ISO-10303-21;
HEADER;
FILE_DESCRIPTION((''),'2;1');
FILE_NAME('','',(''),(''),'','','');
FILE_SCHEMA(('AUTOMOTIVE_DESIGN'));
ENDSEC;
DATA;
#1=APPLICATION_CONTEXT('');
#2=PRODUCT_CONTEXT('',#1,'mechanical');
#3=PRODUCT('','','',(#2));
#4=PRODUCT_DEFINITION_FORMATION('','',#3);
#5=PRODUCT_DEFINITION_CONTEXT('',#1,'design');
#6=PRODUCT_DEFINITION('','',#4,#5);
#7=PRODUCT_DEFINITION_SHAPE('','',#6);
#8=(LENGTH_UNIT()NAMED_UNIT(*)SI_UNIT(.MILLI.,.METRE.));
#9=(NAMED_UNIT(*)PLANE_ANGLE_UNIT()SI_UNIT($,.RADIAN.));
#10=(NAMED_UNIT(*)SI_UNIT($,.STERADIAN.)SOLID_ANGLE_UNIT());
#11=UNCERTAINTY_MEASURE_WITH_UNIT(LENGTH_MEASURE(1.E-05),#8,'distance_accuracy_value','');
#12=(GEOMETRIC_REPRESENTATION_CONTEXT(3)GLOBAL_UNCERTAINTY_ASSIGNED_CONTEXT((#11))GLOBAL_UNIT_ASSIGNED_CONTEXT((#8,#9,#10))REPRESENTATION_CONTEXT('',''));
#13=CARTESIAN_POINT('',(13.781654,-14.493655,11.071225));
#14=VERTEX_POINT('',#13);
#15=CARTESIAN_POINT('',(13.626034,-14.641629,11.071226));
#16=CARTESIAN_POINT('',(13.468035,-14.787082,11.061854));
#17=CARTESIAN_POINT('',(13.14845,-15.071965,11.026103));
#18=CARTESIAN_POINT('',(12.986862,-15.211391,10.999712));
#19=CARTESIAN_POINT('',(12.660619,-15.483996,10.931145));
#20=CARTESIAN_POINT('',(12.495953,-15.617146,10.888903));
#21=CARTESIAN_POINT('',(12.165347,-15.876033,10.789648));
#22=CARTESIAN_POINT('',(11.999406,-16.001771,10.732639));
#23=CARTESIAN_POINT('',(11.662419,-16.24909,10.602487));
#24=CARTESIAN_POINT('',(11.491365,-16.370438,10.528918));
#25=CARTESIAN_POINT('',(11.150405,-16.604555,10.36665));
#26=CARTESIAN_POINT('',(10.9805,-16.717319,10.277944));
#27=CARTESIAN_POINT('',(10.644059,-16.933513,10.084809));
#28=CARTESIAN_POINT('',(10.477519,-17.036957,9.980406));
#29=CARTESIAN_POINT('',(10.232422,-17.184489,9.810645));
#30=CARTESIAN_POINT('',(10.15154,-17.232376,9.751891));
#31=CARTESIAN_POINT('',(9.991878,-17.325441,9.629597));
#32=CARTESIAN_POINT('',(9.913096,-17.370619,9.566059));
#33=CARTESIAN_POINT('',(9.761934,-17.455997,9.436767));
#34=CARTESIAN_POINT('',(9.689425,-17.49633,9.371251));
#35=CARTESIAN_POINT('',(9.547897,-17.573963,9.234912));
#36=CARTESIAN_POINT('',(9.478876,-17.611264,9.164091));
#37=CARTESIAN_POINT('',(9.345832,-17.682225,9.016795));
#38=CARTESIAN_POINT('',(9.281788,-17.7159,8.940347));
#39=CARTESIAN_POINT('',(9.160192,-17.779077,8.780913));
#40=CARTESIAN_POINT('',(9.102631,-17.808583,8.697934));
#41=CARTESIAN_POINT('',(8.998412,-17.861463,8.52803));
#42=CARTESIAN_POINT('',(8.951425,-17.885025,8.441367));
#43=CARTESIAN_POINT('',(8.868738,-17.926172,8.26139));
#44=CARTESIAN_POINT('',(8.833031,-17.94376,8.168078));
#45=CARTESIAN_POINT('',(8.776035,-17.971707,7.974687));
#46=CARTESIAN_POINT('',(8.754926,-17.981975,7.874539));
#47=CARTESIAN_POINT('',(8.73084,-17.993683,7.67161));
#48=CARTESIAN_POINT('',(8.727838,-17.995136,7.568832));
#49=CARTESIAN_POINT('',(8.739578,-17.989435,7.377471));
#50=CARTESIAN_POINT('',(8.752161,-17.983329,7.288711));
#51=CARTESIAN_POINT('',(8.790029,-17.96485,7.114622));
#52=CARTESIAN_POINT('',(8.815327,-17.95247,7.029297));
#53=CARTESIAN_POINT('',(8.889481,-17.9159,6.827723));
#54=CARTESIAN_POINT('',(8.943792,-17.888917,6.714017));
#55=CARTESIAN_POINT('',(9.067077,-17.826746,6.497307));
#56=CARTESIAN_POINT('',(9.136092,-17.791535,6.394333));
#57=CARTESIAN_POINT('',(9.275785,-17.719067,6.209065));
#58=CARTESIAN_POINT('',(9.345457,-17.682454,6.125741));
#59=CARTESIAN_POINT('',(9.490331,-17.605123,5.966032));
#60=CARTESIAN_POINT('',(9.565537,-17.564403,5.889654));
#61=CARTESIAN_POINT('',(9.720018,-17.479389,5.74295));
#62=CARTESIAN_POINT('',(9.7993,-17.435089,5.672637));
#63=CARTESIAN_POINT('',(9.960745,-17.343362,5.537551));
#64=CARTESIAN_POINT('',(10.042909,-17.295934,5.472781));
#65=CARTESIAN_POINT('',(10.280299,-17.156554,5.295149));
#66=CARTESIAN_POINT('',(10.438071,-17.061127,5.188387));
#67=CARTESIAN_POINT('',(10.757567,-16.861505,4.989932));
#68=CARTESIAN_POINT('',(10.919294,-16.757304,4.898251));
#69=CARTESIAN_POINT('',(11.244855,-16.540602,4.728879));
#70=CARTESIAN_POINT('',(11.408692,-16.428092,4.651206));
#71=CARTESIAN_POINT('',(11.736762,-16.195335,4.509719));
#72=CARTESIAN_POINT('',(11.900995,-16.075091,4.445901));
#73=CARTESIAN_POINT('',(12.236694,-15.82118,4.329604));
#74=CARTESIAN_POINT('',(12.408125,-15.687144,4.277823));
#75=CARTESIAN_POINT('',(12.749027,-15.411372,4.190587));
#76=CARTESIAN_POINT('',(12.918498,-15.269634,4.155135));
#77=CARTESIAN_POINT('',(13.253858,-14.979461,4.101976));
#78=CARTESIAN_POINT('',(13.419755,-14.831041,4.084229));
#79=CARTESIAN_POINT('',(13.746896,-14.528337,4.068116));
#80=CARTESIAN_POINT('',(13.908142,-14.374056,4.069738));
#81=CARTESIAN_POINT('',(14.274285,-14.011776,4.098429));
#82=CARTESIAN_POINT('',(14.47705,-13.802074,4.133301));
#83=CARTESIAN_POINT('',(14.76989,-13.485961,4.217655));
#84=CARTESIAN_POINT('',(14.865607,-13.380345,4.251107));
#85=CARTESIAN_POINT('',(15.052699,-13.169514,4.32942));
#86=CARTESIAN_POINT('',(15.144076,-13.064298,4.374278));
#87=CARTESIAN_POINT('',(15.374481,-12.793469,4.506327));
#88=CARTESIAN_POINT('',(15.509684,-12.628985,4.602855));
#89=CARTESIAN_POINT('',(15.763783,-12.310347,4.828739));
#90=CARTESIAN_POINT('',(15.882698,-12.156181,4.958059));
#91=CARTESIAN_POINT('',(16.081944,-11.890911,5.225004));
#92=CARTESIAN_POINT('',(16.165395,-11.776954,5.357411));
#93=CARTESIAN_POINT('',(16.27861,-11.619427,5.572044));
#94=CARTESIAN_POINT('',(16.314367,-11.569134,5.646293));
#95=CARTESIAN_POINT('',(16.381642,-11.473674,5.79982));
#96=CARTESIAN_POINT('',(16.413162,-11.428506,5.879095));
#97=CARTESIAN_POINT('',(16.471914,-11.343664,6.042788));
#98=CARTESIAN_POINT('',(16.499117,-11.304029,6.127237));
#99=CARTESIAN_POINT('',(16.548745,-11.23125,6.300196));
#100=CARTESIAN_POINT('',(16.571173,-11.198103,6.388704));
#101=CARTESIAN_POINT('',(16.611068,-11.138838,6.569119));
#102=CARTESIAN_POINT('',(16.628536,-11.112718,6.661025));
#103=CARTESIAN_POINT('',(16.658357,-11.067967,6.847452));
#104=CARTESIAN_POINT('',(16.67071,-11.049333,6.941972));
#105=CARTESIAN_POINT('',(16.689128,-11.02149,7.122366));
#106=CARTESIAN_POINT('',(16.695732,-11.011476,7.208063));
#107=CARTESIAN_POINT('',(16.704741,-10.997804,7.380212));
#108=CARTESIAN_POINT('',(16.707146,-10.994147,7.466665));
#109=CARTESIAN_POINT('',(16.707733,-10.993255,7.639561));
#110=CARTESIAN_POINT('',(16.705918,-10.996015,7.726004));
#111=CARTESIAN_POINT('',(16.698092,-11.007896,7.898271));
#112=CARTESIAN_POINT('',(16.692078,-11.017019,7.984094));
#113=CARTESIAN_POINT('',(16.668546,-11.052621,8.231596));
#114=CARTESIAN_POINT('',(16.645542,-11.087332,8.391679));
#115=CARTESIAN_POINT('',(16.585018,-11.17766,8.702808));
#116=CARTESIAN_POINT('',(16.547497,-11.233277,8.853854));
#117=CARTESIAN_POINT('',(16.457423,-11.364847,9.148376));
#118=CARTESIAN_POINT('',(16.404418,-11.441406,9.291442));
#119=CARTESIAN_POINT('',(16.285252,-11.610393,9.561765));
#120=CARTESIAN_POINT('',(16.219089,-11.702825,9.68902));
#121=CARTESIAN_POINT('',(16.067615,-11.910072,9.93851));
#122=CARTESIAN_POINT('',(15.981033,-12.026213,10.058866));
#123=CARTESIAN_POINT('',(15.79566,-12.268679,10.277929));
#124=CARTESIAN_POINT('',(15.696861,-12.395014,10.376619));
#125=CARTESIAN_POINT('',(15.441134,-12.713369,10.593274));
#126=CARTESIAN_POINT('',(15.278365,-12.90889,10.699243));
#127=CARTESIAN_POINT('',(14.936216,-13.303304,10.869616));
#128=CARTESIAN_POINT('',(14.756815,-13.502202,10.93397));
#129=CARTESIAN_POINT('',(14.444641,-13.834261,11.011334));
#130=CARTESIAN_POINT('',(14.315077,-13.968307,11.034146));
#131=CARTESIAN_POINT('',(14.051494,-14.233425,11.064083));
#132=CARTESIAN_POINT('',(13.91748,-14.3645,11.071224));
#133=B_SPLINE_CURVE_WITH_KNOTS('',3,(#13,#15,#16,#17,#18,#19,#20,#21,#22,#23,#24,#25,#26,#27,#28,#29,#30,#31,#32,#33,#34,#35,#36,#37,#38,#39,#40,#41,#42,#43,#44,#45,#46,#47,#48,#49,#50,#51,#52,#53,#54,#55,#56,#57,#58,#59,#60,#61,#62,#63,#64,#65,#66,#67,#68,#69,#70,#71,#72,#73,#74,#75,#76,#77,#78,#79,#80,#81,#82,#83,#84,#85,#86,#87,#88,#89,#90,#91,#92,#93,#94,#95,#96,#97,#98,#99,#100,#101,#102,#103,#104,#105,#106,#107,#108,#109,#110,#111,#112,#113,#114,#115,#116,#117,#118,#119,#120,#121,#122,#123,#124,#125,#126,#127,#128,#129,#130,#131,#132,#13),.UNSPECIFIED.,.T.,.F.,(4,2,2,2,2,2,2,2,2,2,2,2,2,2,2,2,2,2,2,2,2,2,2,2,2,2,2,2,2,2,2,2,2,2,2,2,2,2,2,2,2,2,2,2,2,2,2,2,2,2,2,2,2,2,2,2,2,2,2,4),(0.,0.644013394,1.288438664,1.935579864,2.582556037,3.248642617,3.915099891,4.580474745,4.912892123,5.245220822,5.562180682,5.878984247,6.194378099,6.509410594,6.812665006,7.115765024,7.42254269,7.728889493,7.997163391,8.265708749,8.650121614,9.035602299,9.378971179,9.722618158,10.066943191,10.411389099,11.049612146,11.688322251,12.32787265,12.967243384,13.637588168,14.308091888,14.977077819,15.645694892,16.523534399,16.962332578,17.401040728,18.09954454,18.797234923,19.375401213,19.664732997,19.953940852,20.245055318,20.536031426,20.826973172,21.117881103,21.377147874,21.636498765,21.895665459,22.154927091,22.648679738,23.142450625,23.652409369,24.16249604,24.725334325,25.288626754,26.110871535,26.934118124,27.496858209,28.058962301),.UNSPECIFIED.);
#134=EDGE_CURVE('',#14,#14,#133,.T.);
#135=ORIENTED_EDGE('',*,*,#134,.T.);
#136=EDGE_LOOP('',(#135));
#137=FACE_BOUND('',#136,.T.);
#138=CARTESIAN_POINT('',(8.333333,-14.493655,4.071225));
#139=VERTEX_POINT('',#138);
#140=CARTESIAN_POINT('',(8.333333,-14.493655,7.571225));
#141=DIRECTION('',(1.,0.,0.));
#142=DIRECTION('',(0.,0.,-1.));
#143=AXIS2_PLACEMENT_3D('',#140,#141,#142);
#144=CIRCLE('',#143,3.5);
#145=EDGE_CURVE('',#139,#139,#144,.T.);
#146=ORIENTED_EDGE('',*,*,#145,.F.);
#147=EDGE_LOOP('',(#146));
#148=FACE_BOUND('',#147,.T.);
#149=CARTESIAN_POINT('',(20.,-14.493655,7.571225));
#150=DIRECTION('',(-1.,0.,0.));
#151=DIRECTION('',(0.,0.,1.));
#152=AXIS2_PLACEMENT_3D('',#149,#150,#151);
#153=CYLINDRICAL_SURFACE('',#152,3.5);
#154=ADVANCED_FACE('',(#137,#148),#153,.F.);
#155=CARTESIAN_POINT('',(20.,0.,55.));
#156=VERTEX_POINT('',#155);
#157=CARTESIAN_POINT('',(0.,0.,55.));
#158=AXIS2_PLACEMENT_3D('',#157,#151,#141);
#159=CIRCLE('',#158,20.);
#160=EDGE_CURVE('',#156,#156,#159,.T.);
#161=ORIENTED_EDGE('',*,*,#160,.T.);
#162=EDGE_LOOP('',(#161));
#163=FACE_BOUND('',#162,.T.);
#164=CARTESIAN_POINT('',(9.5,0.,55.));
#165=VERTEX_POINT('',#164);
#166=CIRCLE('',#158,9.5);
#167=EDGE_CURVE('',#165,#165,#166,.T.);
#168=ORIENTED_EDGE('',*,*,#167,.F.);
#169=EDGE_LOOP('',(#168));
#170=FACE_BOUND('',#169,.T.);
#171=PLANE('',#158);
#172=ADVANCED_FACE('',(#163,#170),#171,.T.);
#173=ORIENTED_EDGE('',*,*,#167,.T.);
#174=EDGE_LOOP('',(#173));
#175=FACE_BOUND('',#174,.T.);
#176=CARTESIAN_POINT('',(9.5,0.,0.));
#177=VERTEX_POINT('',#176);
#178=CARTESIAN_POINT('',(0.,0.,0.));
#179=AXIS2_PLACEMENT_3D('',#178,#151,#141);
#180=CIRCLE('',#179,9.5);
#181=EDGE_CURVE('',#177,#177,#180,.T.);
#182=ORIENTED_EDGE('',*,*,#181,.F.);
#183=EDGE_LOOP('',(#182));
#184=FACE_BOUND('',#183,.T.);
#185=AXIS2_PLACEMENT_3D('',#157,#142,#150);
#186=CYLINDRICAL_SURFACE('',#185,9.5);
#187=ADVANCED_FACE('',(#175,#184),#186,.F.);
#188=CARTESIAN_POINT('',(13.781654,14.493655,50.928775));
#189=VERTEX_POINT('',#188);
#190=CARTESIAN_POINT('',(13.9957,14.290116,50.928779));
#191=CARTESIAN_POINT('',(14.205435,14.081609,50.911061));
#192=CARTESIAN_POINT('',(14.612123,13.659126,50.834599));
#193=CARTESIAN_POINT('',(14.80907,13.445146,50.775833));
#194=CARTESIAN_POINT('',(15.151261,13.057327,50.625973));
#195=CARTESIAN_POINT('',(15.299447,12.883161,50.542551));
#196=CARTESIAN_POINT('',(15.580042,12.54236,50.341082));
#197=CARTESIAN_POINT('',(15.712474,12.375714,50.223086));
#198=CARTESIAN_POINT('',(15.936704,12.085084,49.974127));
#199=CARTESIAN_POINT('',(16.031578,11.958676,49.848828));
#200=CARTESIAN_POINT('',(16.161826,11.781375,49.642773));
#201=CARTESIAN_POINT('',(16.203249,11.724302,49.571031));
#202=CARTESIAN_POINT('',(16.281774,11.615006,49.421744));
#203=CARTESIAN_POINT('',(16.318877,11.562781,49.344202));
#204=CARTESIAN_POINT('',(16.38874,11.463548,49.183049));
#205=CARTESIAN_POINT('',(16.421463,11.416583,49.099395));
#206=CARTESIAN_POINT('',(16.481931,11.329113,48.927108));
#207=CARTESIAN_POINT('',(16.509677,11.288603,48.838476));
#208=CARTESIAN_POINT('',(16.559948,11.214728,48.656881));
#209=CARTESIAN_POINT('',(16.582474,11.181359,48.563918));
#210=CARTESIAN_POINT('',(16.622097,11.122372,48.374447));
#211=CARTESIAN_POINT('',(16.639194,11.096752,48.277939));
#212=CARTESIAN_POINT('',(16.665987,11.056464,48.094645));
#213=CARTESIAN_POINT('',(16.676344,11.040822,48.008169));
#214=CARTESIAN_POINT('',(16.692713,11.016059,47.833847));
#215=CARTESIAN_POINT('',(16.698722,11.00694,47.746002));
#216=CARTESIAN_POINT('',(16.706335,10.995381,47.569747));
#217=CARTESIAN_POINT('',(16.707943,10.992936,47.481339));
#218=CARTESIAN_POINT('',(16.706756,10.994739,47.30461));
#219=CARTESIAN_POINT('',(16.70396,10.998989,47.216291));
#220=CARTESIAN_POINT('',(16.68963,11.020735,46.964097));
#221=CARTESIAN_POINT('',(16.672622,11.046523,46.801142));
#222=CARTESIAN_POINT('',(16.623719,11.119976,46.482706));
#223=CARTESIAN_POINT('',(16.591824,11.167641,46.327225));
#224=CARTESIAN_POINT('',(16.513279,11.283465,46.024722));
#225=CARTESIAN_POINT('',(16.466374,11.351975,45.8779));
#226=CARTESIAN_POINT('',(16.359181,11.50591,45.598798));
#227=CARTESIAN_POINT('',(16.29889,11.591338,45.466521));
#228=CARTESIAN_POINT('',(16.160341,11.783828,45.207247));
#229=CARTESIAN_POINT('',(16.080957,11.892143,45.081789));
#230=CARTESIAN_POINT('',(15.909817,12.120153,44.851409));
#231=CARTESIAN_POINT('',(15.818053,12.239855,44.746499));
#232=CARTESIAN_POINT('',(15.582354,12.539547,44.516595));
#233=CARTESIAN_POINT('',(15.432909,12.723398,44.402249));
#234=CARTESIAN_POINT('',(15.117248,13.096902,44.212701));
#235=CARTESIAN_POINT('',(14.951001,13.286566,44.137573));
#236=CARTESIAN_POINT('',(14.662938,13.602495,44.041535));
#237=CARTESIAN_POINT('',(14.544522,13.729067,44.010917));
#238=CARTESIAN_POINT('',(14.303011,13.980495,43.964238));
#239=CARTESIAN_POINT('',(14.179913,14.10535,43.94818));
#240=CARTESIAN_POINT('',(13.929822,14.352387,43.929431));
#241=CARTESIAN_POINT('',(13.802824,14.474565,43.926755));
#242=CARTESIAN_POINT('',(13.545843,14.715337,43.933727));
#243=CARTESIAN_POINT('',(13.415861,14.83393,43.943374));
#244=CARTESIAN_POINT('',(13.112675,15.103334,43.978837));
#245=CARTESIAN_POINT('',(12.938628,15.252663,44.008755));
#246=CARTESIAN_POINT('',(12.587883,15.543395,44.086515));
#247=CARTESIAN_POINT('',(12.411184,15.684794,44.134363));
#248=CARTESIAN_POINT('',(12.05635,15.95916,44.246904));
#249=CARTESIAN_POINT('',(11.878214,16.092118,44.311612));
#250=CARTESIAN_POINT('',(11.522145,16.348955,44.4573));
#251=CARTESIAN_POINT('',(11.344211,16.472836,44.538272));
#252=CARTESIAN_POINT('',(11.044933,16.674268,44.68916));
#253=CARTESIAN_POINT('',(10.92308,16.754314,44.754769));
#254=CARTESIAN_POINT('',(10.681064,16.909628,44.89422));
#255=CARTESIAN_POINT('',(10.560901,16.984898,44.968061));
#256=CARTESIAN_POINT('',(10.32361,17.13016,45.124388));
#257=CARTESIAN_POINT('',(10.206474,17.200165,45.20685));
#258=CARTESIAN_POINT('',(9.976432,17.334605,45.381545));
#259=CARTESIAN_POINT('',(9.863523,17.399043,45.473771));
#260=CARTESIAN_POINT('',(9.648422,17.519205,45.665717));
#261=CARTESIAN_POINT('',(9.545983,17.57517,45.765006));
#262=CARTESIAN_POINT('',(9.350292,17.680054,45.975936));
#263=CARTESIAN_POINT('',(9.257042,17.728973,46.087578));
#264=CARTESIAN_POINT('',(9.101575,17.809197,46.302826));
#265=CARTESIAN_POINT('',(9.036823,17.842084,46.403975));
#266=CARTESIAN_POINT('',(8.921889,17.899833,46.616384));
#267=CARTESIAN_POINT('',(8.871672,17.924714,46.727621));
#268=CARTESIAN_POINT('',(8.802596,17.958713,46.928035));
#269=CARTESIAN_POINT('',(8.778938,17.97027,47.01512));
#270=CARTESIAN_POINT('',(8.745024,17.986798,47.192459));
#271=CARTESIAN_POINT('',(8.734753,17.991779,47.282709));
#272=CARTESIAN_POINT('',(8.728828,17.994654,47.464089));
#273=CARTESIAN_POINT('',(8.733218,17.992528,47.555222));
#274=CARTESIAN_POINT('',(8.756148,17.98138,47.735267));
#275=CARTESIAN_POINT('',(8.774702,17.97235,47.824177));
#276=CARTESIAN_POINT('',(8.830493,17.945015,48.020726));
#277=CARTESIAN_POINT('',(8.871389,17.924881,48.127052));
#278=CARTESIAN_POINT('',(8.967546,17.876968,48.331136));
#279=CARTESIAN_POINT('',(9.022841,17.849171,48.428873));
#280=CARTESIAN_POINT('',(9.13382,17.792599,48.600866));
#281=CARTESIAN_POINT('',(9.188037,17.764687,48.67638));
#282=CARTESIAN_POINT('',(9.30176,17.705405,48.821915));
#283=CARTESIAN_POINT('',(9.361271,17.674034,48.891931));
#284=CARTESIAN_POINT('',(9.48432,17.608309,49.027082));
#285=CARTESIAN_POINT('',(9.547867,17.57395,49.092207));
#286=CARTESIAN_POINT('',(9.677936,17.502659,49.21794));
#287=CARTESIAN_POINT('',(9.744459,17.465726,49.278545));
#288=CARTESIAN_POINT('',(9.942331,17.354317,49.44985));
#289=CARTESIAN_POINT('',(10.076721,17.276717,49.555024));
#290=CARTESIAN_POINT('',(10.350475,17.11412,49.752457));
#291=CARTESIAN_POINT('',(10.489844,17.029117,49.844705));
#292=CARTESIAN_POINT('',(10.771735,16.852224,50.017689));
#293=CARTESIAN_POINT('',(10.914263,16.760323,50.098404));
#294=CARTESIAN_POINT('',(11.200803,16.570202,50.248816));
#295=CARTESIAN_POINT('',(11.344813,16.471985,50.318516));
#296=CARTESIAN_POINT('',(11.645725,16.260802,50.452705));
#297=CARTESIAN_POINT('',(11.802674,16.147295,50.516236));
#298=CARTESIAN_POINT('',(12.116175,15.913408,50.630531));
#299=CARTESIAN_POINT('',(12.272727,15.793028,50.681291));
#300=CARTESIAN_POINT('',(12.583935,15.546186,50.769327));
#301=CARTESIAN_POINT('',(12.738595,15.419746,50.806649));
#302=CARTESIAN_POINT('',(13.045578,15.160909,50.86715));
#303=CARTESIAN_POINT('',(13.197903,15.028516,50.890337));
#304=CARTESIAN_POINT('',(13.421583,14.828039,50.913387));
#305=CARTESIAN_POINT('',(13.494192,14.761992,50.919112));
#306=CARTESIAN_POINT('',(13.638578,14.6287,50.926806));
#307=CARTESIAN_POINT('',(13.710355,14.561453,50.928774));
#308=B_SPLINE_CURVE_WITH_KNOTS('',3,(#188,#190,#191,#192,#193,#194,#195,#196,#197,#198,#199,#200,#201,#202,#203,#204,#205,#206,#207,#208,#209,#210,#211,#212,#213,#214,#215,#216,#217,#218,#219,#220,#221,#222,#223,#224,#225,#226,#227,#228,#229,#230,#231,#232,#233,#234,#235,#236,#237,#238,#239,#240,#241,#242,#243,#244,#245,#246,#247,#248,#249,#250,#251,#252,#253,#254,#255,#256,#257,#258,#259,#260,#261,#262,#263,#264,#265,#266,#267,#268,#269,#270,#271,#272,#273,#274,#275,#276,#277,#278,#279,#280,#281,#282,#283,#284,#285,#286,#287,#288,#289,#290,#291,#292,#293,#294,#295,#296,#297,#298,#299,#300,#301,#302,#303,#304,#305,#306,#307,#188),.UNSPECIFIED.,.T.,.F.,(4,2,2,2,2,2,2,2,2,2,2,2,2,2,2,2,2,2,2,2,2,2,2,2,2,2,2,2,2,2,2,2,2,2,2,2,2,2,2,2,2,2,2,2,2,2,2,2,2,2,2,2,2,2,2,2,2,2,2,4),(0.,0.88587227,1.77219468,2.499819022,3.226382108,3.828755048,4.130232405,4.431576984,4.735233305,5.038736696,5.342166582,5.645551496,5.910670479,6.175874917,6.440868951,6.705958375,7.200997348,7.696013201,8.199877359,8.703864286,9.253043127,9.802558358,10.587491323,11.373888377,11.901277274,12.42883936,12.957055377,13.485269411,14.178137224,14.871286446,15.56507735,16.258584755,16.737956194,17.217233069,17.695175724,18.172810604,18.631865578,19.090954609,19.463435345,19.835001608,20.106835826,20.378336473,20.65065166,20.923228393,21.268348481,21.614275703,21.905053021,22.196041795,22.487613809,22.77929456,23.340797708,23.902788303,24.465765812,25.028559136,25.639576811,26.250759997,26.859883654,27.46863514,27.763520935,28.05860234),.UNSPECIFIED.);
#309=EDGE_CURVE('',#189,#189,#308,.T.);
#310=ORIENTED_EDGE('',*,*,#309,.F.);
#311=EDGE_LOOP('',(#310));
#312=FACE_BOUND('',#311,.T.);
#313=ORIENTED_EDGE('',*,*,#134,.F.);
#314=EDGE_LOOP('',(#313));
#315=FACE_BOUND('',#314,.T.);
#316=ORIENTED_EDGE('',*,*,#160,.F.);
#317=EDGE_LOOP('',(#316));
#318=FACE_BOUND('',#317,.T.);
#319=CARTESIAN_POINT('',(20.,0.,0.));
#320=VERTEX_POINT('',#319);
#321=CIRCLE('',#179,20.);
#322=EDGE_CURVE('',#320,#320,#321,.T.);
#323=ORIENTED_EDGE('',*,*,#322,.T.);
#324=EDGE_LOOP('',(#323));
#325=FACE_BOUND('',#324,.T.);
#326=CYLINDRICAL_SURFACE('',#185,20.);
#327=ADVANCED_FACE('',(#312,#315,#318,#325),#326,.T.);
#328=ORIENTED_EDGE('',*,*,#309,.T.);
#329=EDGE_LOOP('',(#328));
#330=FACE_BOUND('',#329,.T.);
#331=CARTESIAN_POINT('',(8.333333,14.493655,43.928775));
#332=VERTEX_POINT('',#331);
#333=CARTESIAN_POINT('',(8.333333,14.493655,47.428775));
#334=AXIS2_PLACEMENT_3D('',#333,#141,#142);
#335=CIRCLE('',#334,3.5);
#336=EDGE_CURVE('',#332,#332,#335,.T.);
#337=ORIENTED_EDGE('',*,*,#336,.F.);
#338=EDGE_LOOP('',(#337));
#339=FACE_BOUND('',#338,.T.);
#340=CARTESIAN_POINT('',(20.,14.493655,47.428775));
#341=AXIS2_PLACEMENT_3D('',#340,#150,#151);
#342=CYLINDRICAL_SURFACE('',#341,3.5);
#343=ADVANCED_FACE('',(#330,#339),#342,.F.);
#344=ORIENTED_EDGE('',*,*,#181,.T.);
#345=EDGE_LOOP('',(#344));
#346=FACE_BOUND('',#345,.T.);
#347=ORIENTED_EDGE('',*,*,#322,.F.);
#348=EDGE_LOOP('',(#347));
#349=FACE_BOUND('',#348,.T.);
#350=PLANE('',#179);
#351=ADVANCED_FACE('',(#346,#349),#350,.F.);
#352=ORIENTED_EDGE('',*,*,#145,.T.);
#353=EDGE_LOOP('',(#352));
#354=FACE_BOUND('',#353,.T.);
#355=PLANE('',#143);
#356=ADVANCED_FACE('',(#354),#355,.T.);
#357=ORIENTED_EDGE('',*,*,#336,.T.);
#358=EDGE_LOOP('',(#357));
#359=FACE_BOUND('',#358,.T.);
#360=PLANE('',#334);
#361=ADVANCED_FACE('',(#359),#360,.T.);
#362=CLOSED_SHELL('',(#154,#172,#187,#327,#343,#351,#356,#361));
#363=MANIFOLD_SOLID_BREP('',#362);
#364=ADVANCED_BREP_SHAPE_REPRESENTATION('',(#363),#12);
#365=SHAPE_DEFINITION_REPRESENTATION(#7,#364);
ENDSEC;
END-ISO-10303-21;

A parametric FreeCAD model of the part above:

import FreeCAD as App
import Part
import Sketcher

V = App.Vector

doc = App.newDocument("Part")
params = doc.addObject("Spreadsheet::Sheet", "Params")
for row, (alias, value) in enumerate([
    ("sketch1_diameter", "40 mm"),
    ("sketch1_diameter2", "19 mm"),
    ("pad1_length", "55 mm"),
    ("sketch2_diameter", "7 mm"),
], start=1):
    params.set(f"A{row}", alias)
    params.set(f"B{row}", "=" + value)
    params.setAlias(f"B{row}", alias)

body = doc.addObject("PartDesign::Body", "Body")

# Sketch on XY plane
sketch1 = body.newObject("Sketcher::SketchObject", "Sketch")
sketch1.AttachmentSupport = (doc.getObject("XY_Plane"), [""])
sketch1.MapMode = "FlatFace"
sketch1.addGeometry([
    Part.Circle(V(0, 0, 0), V(0, 0, 1), 20),
    Part.Circle(V(0, 0, 0), V(0, 0, 1), 10),
], False)
sketch1.addConstraint([
    Sketcher.Constraint("Coincident", 0, 3, -1, 1),
    Sketcher.Constraint("Coincident", 1, 3, -1, 1),
    Sketcher.Constraint("Diameter", 0, 40.0),
    Sketcher.Constraint("Diameter", 1, 19.0),
])
sketch1.setExpression("Constraints[2]", "Params.sketch1_diameter")
sketch1.setExpression("Constraints[3]", "Params.sketch1_diameter2")
pad1 = body.newObject("PartDesign::Pad", "Pad")
pad1.Profile = sketch1
pad1.setExpression("Length", "Params.pad1_length")

# Sketch on YZ plane
sketch2 = body.newObject("Sketcher::SketchObject", "Sketch001")
sketch2.AttachmentSupport = (doc.getObject("YZ_Plane"), [""])
sketch2.MapMode = "FlatFace"
sketch2.AttachmentOffset = App.Placement(V(0, 0, 8.333333), App.Rotation())
sketch2.addGeometry([
    Part.Circle(V(14.5, 47.4, 0), V(0, 0, 1), 3.5),
    Part.Circle(V(-14.5, 7.6, 0), V(0, 0, 1), 3.5),
], False)
sketch2.addConstraint([
    Sketcher.Constraint("Equal", 0, 1),
    Sketcher.Constraint("Diameter", 0, 7.0),
    Sketcher.Constraint("DistanceX", 1, 3, 0, 3, 28.987309),
    Sketcher.Constraint("DistanceY", 1, 3, 0, 3, 39.85755),
    Sketcher.Constraint("DistanceX", -1, 1, 0, 3, 14.493655),
    Sketcher.Constraint("DistanceY", -1, 1, 0, 3, 47.428775),
])
sketch2.setExpression("Constraints[1]", "Params.sketch2_diameter")
pocket1 = body.newObject("PartDesign::Pocket", "Pocket")
pocket1.Profile = sketch2
pocket1.Type = "ThroughAll"
pocket1.Reversed = True

doc.recompute()
